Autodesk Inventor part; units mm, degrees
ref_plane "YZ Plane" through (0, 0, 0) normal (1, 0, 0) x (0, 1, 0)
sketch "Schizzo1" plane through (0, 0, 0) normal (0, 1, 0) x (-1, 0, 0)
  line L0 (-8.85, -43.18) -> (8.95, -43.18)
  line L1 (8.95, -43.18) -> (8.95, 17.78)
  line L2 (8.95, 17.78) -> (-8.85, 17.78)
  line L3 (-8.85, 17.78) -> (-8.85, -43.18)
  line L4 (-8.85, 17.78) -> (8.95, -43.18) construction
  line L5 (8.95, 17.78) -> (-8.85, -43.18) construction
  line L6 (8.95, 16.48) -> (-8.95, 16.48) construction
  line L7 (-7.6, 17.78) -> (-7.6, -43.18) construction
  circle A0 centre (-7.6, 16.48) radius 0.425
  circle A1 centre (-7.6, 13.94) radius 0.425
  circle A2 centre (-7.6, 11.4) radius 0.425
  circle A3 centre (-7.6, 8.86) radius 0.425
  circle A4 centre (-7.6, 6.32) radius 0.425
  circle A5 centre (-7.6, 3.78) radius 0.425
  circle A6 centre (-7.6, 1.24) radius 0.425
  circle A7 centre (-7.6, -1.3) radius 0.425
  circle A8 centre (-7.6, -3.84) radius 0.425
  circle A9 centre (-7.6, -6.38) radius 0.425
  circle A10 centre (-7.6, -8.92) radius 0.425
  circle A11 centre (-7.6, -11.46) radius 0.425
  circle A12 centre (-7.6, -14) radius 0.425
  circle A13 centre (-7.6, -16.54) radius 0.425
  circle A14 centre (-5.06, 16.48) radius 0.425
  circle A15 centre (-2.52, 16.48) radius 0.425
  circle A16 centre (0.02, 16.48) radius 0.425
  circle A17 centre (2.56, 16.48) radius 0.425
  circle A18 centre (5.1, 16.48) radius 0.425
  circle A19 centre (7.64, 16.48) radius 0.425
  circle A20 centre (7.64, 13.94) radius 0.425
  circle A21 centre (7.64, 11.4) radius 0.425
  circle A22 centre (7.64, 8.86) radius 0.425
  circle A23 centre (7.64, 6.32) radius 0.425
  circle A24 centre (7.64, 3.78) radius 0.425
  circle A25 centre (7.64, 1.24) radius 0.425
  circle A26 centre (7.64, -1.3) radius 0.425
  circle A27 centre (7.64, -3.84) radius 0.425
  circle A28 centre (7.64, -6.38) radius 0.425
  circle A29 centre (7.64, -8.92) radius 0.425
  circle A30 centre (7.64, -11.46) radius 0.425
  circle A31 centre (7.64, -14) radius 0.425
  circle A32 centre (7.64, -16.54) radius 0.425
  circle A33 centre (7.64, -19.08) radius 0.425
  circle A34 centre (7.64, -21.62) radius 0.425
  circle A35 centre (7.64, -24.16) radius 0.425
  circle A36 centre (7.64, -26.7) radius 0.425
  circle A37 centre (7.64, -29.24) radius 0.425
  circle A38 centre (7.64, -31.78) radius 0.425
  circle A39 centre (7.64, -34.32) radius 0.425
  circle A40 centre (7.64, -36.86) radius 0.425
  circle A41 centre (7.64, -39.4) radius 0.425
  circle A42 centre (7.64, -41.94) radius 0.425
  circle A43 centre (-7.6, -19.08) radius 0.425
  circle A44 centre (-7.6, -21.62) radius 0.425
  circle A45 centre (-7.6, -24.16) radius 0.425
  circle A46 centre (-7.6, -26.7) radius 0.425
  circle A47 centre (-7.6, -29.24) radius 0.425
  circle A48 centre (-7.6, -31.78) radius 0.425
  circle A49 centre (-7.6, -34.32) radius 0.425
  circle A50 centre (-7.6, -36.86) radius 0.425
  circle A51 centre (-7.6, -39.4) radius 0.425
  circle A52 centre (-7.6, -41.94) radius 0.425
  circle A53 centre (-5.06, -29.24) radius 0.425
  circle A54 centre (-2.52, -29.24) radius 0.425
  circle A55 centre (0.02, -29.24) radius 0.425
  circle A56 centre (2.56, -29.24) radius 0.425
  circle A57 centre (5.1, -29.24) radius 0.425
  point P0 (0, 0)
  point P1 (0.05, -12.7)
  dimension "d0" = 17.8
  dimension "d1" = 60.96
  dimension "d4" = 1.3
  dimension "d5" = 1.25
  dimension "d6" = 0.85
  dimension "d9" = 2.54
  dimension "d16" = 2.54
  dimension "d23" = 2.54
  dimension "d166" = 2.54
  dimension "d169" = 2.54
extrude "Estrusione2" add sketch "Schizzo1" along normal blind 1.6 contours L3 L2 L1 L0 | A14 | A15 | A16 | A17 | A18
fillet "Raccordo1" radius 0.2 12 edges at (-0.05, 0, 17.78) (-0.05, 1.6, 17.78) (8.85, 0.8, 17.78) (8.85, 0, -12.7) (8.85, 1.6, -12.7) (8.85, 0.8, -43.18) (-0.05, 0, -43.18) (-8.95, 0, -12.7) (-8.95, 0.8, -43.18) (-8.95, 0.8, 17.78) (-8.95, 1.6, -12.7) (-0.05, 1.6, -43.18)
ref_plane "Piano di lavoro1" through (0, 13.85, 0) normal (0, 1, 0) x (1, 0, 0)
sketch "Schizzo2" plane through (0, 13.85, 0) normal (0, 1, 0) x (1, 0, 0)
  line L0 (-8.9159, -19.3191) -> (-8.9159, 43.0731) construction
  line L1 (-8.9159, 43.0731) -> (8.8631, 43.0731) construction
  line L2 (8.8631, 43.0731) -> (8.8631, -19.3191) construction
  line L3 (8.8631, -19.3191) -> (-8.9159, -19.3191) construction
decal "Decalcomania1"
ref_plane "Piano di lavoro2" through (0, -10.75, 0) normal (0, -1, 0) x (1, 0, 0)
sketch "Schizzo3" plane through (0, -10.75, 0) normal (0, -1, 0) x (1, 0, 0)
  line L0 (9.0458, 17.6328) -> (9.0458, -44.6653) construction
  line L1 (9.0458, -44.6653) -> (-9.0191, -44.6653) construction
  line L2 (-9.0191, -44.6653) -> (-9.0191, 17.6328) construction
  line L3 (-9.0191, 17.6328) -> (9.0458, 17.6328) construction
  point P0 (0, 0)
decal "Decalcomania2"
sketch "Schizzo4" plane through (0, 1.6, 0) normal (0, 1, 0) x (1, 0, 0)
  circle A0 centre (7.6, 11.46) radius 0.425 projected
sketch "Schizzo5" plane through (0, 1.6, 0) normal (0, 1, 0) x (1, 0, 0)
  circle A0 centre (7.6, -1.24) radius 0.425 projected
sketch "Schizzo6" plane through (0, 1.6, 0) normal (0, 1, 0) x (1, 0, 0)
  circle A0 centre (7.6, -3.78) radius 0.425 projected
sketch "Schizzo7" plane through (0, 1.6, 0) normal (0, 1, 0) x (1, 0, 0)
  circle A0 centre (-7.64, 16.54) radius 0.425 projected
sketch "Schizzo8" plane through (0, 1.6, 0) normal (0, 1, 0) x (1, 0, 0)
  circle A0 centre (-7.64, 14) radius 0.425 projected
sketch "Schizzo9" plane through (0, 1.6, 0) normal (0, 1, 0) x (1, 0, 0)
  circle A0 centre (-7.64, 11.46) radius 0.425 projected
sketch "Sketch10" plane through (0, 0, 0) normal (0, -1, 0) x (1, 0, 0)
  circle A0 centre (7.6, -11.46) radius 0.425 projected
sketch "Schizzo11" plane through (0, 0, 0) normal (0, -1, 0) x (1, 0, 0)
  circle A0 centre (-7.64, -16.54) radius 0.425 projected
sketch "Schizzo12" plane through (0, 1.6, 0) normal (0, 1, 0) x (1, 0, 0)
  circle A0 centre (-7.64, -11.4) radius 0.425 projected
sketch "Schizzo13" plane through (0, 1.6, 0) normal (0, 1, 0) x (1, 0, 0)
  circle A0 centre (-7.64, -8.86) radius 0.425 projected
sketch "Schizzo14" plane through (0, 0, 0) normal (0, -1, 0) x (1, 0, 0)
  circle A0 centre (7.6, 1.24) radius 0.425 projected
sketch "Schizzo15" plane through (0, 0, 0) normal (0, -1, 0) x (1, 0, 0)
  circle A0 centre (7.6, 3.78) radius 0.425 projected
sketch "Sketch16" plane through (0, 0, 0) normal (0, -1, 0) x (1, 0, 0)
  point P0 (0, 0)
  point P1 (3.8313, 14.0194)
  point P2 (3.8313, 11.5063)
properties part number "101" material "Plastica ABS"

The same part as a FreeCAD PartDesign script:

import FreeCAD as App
import Part
import Sketcher
Q = App.Units.Quantity


def edges_at(feature, points):
    """Names of the edges that pass closest to the given points."""
    edges = feature.Shape.Edges
    near = lambda p: min(range(len(edges)), key=lambda i: edges[i].distToShape(Part.Vertex(*p))[0])
    return sorted({f"Edge{near(p) + 1}" for p in points})

doc = App.newDocument("Part")
params = doc.addObject("Spreadsheet::Sheet", "Params")
for row, (alias, value) in enumerate([
    ("sketch1_diameter", "0.85 mm"),
    ("sketch1_width", "17.8 mm"),
    ("sketch1_height", "60.96 mm"),
    ("pad1_length", "1.6 mm"),
    ("fillet_radius", "0.2 mm"),
], start=1):
    params.set(f"A{row}", alias)
    params.set(f"B{row}", "=" + value)
    params.setAlias(f"B{row}", alias)

body = doc.addObject("PartDesign::Body", "Body")

# Sketch on XZ plane
sketch1 = body.newObject("Sketcher::SketchObject", "Sketch")
sketch1.AttachmentSupport = (doc.getObject("XZ_Plane"), [""])
sketch1.MapMode = "FlatFace"
sketch1.addGeometry(Part.LineSegment(App.Vector(8.85, 17.78, 0), App.Vector(8.85, -43.18, 0)), False)
sketch1.addGeometry(Part.LineSegment(App.Vector(8.85, -43.18, 0), App.Vector(-8.95, -43.18, 0)), False)
sketch1.addGeometry(Part.LineSegment(App.Vector(-8.95, -43.18, 0), App.Vector(-8.95, 17.78, 0)), False)
sketch1.addGeometry(Part.LineSegment(App.Vector(-8.95, 17.78, 0), App.Vector(8.85, 17.78, 0)), False)
sketch1.addGeometry(Part.Circle(App.Vector(7.6, -41.94, 0), App.Vector(0, 0, 1), 0.42), False)
sketch1.addGeometry(Part.Circle(App.Vector(7.6, -39.4, 0), App.Vector(0, 0, 1), 0.42), False)
sketch1.addGeometry(Part.Circle(App.Vector(7.6, -36.86, 0), App.Vector(0, 0, 1), 0.42), False)
sketch1.addGeometry(Part.Circle(App.Vector(7.6, -34.32, 0), App.Vector(0, 0, 1), 0.42), False)
sketch1.addGeometry(Part.Circle(App.Vector(7.6, -31.78, 0), App.Vector(0, 0, 1), 0.42), False)
sketch1.addGeometry(Part.Circle(App.Vector(7.6, -29.24, 0), App.Vector(0, 0, 1), 0.42), False)
sketch1.addGeometry(Part.Circle(App.Vector(5.06, -29.24, 0), App.Vector(0, 0, 1), 0.42), False)
sketch1.addGeometry(Part.Circle(App.Vector(2.52, -29.24, 0), App.Vector(0, 0, 1), 0.42), False)
sketch1.addGeometry(Part.Circle(App.Vector(-0.02, -29.24, 0), App.Vector(0, 0, 1), 0.42), False)
sketch1.addGeometry(Part.Circle(App.Vector(7.6, -26.7, 0), App.Vector(0, 0, 1), 0.42), False)
sketch1.addGeometry(Part.Circle(App.Vector(7.6, -24.16, 0), App.Vector(0, 0, 1), 0.42), False)
sketch1.addGeometry(Part.Circle(App.Vector(7.6, -21.62, 0), App.Vector(0, 0, 1), 0.42), False)
sketch1.addGeometry(Part.Circle(App.Vector(7.6, -19.08, 0), App.Vector(0, 0, 1), 0.42), False)
sketch1.addGeometry(Part.Circle(App.Vector(7.6, -16.54, 0), App.Vector(0, 0, 1), 0.42), False)
sketch1.addGeometry(Part.Circle(App.Vector(7.6, -14, 0), App.Vector(0, 0, 1), 0.42), False)
sketch1.addGeometry(Part.Circle(App.Vector(-2.56, -29.24, 0), App.Vector(0, 0, 1), 0.42), False)
sketch1.addGeometry(Part.Circle(App.Vector(-7.64, -41.94, 0), App.Vector(0, 0, 1), 0.42), False)
sketch1.addGeometry(Part.Circle(App.Vector(-7.64, -39.4, 0), App.Vector(0, 0, 1), 0.42), False)
sketch1.addGeometry(Part.Circle(App.Vector(-7.64, -36.86, 0), App.Vector(0, 0, 1), 0.42), False)
sketch1.addGeometry(Part.Circle(App.Vector(-5.1, -29.24, 0), App.Vector(0, 0, 1), 0.42), False)
sketch1.addGeometry(Part.Circle(App.Vector(-7.64, -34.32, 0), App.Vector(0, 0, 1), 0.42), False)
sketch1.addGeometry(Part.Circle(App.Vector(-7.64, -31.78, 0), App.Vector(0, 0, 1), 0.42), False)
sketch1.addGeometry(Part.Circle(App.Vector(-7.64, -29.24, 0), App.Vector(0, 0, 1), 0.42), False)
sketch1.addGeometry(Part.Circle(App.Vector(-7.64, -26.7, 0), App.Vector(0, 0, 1), 0.42), False)
sketch1.addGeometry(Part.Circle(App.Vector(-7.64, -24.16, 0), App.Vector(0, 0, 1), 0.42), False)
sketch1.addGeometry(Part.Circle(App.Vector(-7.64, -21.62, 0), App.Vector(0, 0, 1), 0.42), False)
sketch1.addGeometry(Part.Circle(App.Vector(-7.64, -19.08, 0), App.Vector(0, 0, 1), 0.42), False)
sketch1.addGeometry(Part.Circle(App.Vector(-7.64, -16.54, 0), App.Vector(0, 0, 1), 0.42), False)
sketch1.addGeometry(Part.Circle(App.Vector(-7.64, -14, 0), App.Vector(0, 0, 1), 0.42), False)
sketch1.addGeometry(Part.Circle(App.Vector(7.6, -11.46, 0), App.Vector(0, 0, 1), 0.42), False)
sketch1.addGeometry(Part.Circle(App.Vector(7.6, -8.92, 0), App.Vector(0, 0, 1), 0.42), False)
sketch1.addGeometry(Part.Circle(App.Vector(7.6, -6.38, 0), App.Vector(0, 0, 1), 0.42), False)
sketch1.addGeometry(Part.Circle(App.Vector(7.6, -3.84, 0), App.Vector(0, 0, 1), 0.42), False)
sketch1.addGeometry(Part.Circle(App.Vector(7.6, -1.3, 0), App.Vector(0, 0, 1), 0.42), False)
sketch1.addGeometry(Part.Circle(App.Vector(7.6, 1.24, 0), App.Vector(0, 0, 1), 0.42), False)
sketch1.addGeometry(Part.Circle(App.Vector(7.6, 3.78, 0), App.Vector(0, 0, 1), 0.42), False)
sketch1.addGeometry(Part.Circle(App.Vector(7.6, 6.32, 0), App.Vector(0, 0, 1), 0.42), False)
sketch1.addGeometry(Part.Circle(App.Vector(7.6, 8.86, 0), App.Vector(0, 0, 1), 0.42), False)
sketch1.addGeometry(Part.Circle(App.Vector(7.6, 11.4, 0), App.Vector(0, 0, 1), 0.42), False)
sketch1.addGeometry(Part.Circle(App.Vector(7.6, 13.94, 0), App.Vector(0, 0, 1), 0.42), False)
sketch1.addGeometry(Part.Circle(App.Vector(7.6, 16.48, 0), App.Vector(0, 0, 1), 0.42), False)
sketch1.addGeometry(Part.Circle(App.Vector(-7.64, -11.46, 0), App.Vector(0, 0, 1), 0.42), False)
sketch1.addGeometry(Part.Circle(App.Vector(-7.64, -8.92, 0), App.Vector(0, 0, 1), 0.42), False)
sketch1.addGeometry(Part.Circle(App.Vector(-7.64, -6.38, 0), App.Vector(0, 0, 1), 0.42), False)
sketch1.addGeometry(Part.Circle(App.Vector(-7.64, -3.84, 0), App.Vector(0, 0, 1), 0.42), False)
sketch1.addGeometry(Part.Circle(App.Vector(-7.64, -1.3, 0), App.Vector(0, 0, 1), 0.42), False)
sketch1.addGeometry(Part.Circle(App.Vector(-7.64, 1.24, 0), App.Vector(0, 0, 1), 0.42), False)
sketch1.addGeometry(Part.Circle(App.Vector(-7.64, 3.78, 0), App.Vector(0, 0, 1), 0.42), False)
sketch1.addGeometry(Part.Circle(App.Vector(-7.64, 6.32, 0), App.Vector(0, 0, 1), 0.42), False)
sketch1.addGeometry(Part.Circle(App.Vector(-7.64, 8.86, 0), App.Vector(0, 0, 1), 0.42), False)
sketch1.addGeometry(Part.Circle(App.Vector(-7.64, 11.4, 0), App.Vector(0, 0, 1), 0.42), False)
sketch1.addGeometry(Part.Circle(App.Vector(-7.64, 13.94, 0), App.Vector(0, 0, 1), 0.42), False)
sketch1.addGeometry(Part.Circle(App.Vector(-7.64, 16.48, 0), App.Vector(0, 0, 1), 0.42), False)
sketch1.addConstraint(Sketcher.Constraint("Coincident", 0, 2, 1, 1))
sketch1.addConstraint(Sketcher.Constraint("Coincident", 1, 2, 2, 1))
sketch1.addConstraint(Sketcher.Constraint("Coincident", 2, 2, 3, 1))
sketch1.addConstraint(Sketcher.Constraint("Coincident", 3, 2, 0, 1))
sketch1.addConstraint(Sketcher.Constraint("Vertical", 0))
sketch1.addConstraint(Sketcher.Constraint("Horizontal", 1))
sketch1.addConstraint(Sketcher.Constraint("Vertical", 2))
sketch1.addConstraint(Sketcher.Constraint("Horizontal", 3))
sketch1.addConstraint(Sketcher.Constraint("Equal", 4, 5))
sketch1.addConstraint(Sketcher.Constraint("Equal", 5, 6))
sketch1.addConstraint(Sketcher.Constraint("Equal", 6, 7))
sketch1.addConstraint(Sketcher.Constraint("Equal", 7, 8))
sketch1.addConstraint(Sketcher.Constraint("Equal", 8, 9))
sketch1.addConstraint(Sketcher.Constraint("Equal", 9, 10))
sketch1.addConstraint(Sketcher.Constraint("Equal", 10, 11))
sketch1.addConstraint(Sketcher.Constraint("Equal", 11, 12))
sketch1.addConstraint(Sketcher.Constraint("Equal", 12, 13))
sketch1.addConstraint(Sketcher.Constraint("Equal", 13, 14))
sketch1.addConstraint(Sketcher.Constraint("Equal", 14, 15))
sketch1.addConstraint(Sketcher.Constraint("Equal", 15, 16))
sketch1.addConstraint(Sketcher.Constraint("Equal", 16, 17))
sketch1.addConstraint(Sketcher.Constraint("Equal", 17, 18))
sketch1.addConstraint(Sketcher.Constraint("Equal", 18, 19))
sketch1.addConstraint(Sketcher.Constraint("Equal", 19, 20))
sketch1.addConstraint(Sketcher.Constraint("Equal", 20, 21))
sketch1.addConstraint(Sketcher.Constraint("Equal", 21, 22))
sketch1.addConstraint(Sketcher.Constraint("Equal", 22, 23))
sketch1.addConstraint(Sketcher.Constraint("Equal", 23, 24))
sketch1.addConstraint(Sketcher.Constraint("Equal", 24, 25))
sketch1.addConstraint(Sketcher.Constraint("Equal", 25, 26))
sketch1.addConstraint(Sketcher.Constraint("Equal", 26, 27))
sketch1.addConstraint(Sketcher.Constraint("Equal", 27, 28))
sketch1.addConstraint(Sketcher.Constraint("Equal", 28, 29))
sketch1.addConstraint(Sketcher.Constraint("Equal", 29, 30))
sketch1.addConstraint(Sketcher.Constraint("Equal", 30, 31))
sketch1.addConstraint(Sketcher.Constraint("Equal", 31, 32))
sketch1.addConstraint(Sketcher.Constraint("Equal", 32, 33))
sketch1.addConstraint(Sketcher.Constraint("Equal", 33, 34))
sketch1.addConstraint(Sketcher.Constraint("Equal", 34, 35))
sketch1.addConstraint(Sketcher.Constraint("Equal", 35, 36))
sketch1.addConstraint(Sketcher.Constraint("Equal", 36, 37))
sketch1.addConstraint(Sketcher.Constraint("Equal", 37, 38))
sketch1.addConstraint(Sketcher.Constraint("Equal", 38, 39))
sketch1.addConstraint(Sketcher.Constraint("Equal", 39, 40))
sketch1.addConstraint(Sketcher.Constraint("Equal", 40, 41))
sketch1.addConstraint(Sketcher.Constraint("Equal", 41, 42))
sketch1.addConstraint(Sketcher.Constraint("Equal", 42, 43))
sketch1.addConstraint(Sketcher.Constraint("Equal", 43, 44))
sketch1.addConstraint(Sketcher.Constraint("Equal", 44, 45))
sketch1.addConstraint(Sketcher.Constraint("Equal", 45, 46))
sketch1.addConstraint(Sketcher.Constraint("Equal", 46, 47))
sketch1.addConstraint(Sketcher.Constraint("Equal", 47, 48))
sketch1.addConstraint(Sketcher.Constraint("Equal", 48, 49))
sketch1.addConstraint(Sketcher.Constraint("Equal", 49, 50))
sketch1.addConstraint(Sketcher.Constraint("Equal", 50, 51))
sketch1.addConstraint(Sketcher.Constraint("Equal", 51, 52))
sketch1.addConstraint(Sketcher.Constraint("Equal", 52, 53))
sketch1.addConstraint(Sketcher.Constraint("Equal", 53, 54))
sketch1.addConstraint(Sketcher.Constraint("Equal", 54, 55))
sketch1.addConstraint(Sketcher.Constraint("Equal", 55, 56))
sketch1.addConstraint(Sketcher.Constraint("Horizontal", 9, 3, 10, 3))
sketch1.addConstraint(Sketcher.Constraint("Horizontal", 10, 3, 11, 3))
sketch1.addConstraint(Sketcher.Constraint("Horizontal", 11, 3, 12, 3))
sketch1.addConstraint(Sketcher.Constraint("Horizontal", 12, 3, 19, 3))
sketch1.addConstraint(Sketcher.Constraint("Horizontal", 4, 3, 20, 3))
sketch1.addConstraint(Sketcher.Constraint("Horizontal", 5, 3, 21, 3))
sketch1.addConstraint(Sketcher.Constraint("Horizontal", 6, 3, 22, 3))
sketch1.addConstraint(Sketcher.Constraint("Horizontal", 19, 3, 23, 3))
sketch1.addConstraint(Sketcher.Constraint("Horizontal", 7, 3, 24, 3))
sketch1.addConstraint(Sketcher.Constraint("Horizontal", 8, 3, 25, 3))
sketch1.addConstraint(Sketcher.Constraint("Horizontal", 23, 3, 26, 3))
sketch1.addConstraint(Sketcher.Constraint("Horizontal", 13, 3, 27, 3))
sketch1.addConstraint(Sketcher.Constraint("Horizontal", 14, 3, 28, 3))
sketch1.addConstraint(Sketcher.Constraint("Horizontal", 15, 3, 29, 3))
sketch1.addConstraint(Sketcher.Constraint("Horizontal", 16, 3, 30, 3))
sketch1.addConstraint(Sketcher.Constraint("Horizontal", 17, 3, 31, 3))
sketch1.addConstraint(Sketcher.Constraint("Horizontal", 18, 3, 32, 3))
sketch1.addConstraint(Sketcher.Constraint("Horizontal", 33, 3, 45, 3))
sketch1.addConstraint(Sketcher.Constraint("Horizontal", 34, 3, 46, 3))
sketch1.addConstraint(Sketcher.Constraint("Horizontal", 35, 3, 47, 3))
sketch1.addConstraint(Sketcher.Constraint("Horizontal", 36, 3, 48, 3))
sketch1.addConstraint(Sketcher.Constraint("Horizontal", 37, 3, 49, 3))
sketch1.addConstraint(Sketcher.Constraint("Horizontal", 38, 3, 50, 3))
sketch1.addConstraint(Sketcher.Constraint("Horizontal", 39, 3, 51, 3))
sketch1.addConstraint(Sketcher.Constraint("Horizontal", 40, 3, 52, 3))
sketch1.addConstraint(Sketcher.Constraint("Horizontal", 41, 3, 53, 3))
sketch1.addConstraint(Sketcher.Constraint("Horizontal", 42, 3, 54, 3))
sketch1.addConstraint(Sketcher.Constraint("Horizontal", 43, 3, 55, 3))
sketch1.addConstraint(Sketcher.Constraint("Horizontal", 44, 3, 56, 3))
sketch1.addConstraint(Sketcher.Constraint("Vertical", 4, 3, 5, 3))
sketch1.addConstraint(Sketcher.Constraint("Vertical", 5, 3, 6, 3))
sketch1.addConstraint(Sketcher.Constraint("Vertical", 6, 3, 7, 3))
sketch1.addConstraint(Sketcher.Constraint("Vertical", 7, 3, 8, 3))
sketch1.addConstraint(Sketcher.Constraint("Vertical", 8, 3, 9, 3))
sketch1.addConstraint(Sketcher.Constraint("Vertical", 9, 3, 13, 3))
sketch1.addConstraint(Sketcher.Constraint("Vertical", 13, 3, 14, 3))
sketch1.addConstraint(Sketcher.Constraint("Vertical", 14, 3, 15, 3))
sketch1.addConstraint(Sketcher.Constraint("Vertical", 15, 3, 16, 3))
sketch1.addConstraint(Sketcher.Constraint("Vertical", 16, 3, 17, 3))
sketch1.addConstraint(Sketcher.Constraint("Vertical", 17, 3, 18, 3))
sketch1.addConstraint(Sketcher.Constraint("Vertical", 20, 3, 21, 3))
sketch1.addConstraint(Sketcher.Constraint("Vertical", 21, 3, 22, 3))
sketch1.addConstraint(Sketcher.Constraint("Vertical", 22, 3, 24, 3))
sketch1.addConstraint(Sketcher.Constraint("Vertical", 24, 3, 25, 3))
sketch1.addConstraint(Sketcher.Constraint("Vertical", 25, 3, 26, 3))
sketch1.addConstraint(Sketcher.Constraint("Vertical", 26, 3, 27, 3))
sketch1.addConstraint(Sketcher.Constraint("Vertical", 27, 3, 28, 3))
sketch1.addConstraint(Sketcher.Constraint("Vertical", 28, 3, 29, 3))
sketch1.addConstraint(Sketcher.Constraint("Vertical", 29, 3, 30, 3))
sketch1.addConstraint(Sketcher.Constraint("Vertical", 30, 3, 31, 3))
sketch1.addConstraint(Sketcher.Constraint("Vertical", 31, 3, 32, 3))
sketch1.addConstraint(Sketcher.Constraint("Vertical", 18, 3, 33, 3))
sketch1.addConstraint(Sketcher.Constraint("Vertical", 33, 3, 34, 3))
sketch1.addConstraint(Sketcher.Constraint("Vertical", 34, 3, 35, 3))
sketch1.addConstraint(Sketcher.Constraint("Vertical", 35, 3, 36, 3))
sketch1.addConstraint(Sketcher.Constraint("Vertical", 36, 3, 37, 3))
sketch1.addConstraint(Sketcher.Constraint("Vertical", 37, 3, 38, 3))
sketch1.addConstraint(Sketcher.Constraint("Vertical", 38, 3, 39, 3))
sketch1.addConstraint(Sketcher.Constraint("Vertical", 39, 3, 40, 3))
sketch1.addConstraint(Sketcher.Constraint("Vertical", 40, 3, 41, 3))
sketch1.addConstraint(Sketcher.Constraint("Vertical", 41, 3, 42, 3))
sketch1.addConstraint(Sketcher.Constraint("Vertical", 42, 3, 43, 3))
sketch1.addConstraint(Sketcher.Constraint("Vertical", 43, 3, 44, 3))
sketch1.addConstraint(Sketcher.Constraint("Vertical", 32, 3, 45, 3))
sketch1.addConstraint(Sketcher.Constraint("Vertical", 45, 3, 46, 3))
sketch1.addConstraint(Sketcher.Constraint("Vertical", 46, 3, 47, 3))
sketch1.addConstraint(Sketcher.Constraint("Vertical", 47, 3, 48, 3))
sketch1.addConstraint(Sketcher.Constraint("Vertical", 48, 3, 49, 3))
sketch1.addConstraint(Sketcher.Constraint("Vertical", 49, 3, 50, 3))
sketch1.addConstraint(Sketcher.Constraint("Vertical", 50, 3, 51, 3))
sketch1.addConstraint(Sketcher.Constraint("Vertical", 51, 3, 52, 3))
sketch1.addConstraint(Sketcher.Constraint("Vertical", 52, 3, 53, 3))
sketch1.addConstraint(Sketcher.Constraint("Vertical", 53, 3, 54, 3))
sketch1.addConstraint(Sketcher.Constraint("Vertical", 54, 3, 55, 3))
sketch1.addConstraint(Sketcher.Constraint("Vertical", 55, 3, 56, 3))
sketch1.addConstraint(Sketcher.Constraint("Diameter", 4, Q("0.85 mm")))
sketch1.addConstraint(Sketcher.Constraint("DistanceX", 1, 2, 1, 1, Q("17.8 mm")))
sketch1.addConstraint(Sketcher.Constraint("DistanceY", 0, 2, 0, 1, Q("60.96 mm")))
sketch1.addConstraint(Sketcher.Constraint("DistanceY", 37, 3, -1, 1, Q("1.3 mm")))
sketch1.addConstraint(Sketcher.Constraint("DistanceY", 56, 3, 2, 2, Q("1.3 mm")))
sketch1.addConstraint(Sketcher.Constraint("DistanceY", 4, 3, 5, 3, Q("2.54 mm")))
sketch1.addConstraint(Sketcher.Constraint("DistanceY", 5, 3, 6, 3, Q("2.54 mm")))
sketch1.addConstraint(Sketcher.Constraint("DistanceY", 6, 3, 7, 3, Q("2.54 mm")))
sketch1.addConstraint(Sketcher.Constraint("DistanceY", 7, 3, 8, 3, Q("2.54 mm")))
sketch1.addConstraint(Sketcher.Constraint("DistanceY", 8, 3, 9, 3, Q("2.54 mm")))
sketch1.addConstraint(Sketcher.Constraint("DistanceX", 10, 3, 9, 3, Q("2.54 mm")))
sketch1.addConstraint(Sketcher.Constraint("DistanceX", 11, 3, 10, 3, Q("2.54 mm")))
sketch1.addConstraint(Sketcher.Constraint("DistanceX", 12, 3, 11, 3, Q("2.54 mm")))
sketch1.addConstraint(Sketcher.Constraint("DistanceY", 9, 3, 13, 3, Q("2.54 mm")))
sketch1.addConstraint(Sketcher.Constraint("DistanceY", 13, 3, 14, 3, Q("2.54 mm")))
sketch1.addConstraint(Sketcher.Constraint("DistanceY", 14, 3, 15, 3, Q("2.54 mm")))
sketch1.addConstraint(Sketcher.Constraint("DistanceY", 15, 3, 16, 3, Q("2.54 mm")))
sketch1.addConstraint(Sketcher.Constraint("DistanceY", 16, 3, 17, 3, Q("2.54 mm")))
sketch1.addConstraint(Sketcher.Constraint("DistanceY", 17, 3, 18, 3, Q("2.54 mm")))
sketch1.addConstraint(Sketcher.Constraint("DistanceX", 19, 3, 12, 3, Q("2.54 mm")))
sketch1.addConstraint(Sketcher.Constraint("DistanceX", 23, 3, 19, 3, Q("2.54 mm")))
sketch1.addConstraint(Sketcher.Constraint("DistanceX", 22, 3, 23, 3, Q("2.54 mm")))
sketch1.addConstraint(Sketcher.Constraint("DistanceY", 18, 3, 33, 3, Q("2.54 mm")))
sketch1.addConstraint(Sketcher.Constraint("DistanceY", 33, 3, 34, 3, Q("2.54 mm")))
sketch1.addConstraint(Sketcher.Constraint("DistanceY", 34, 3, 35, 3, Q("2.54 mm")))
sketch1.addConstraint(Sketcher.Constraint("DistanceY", 35, 3, 36, 3, Q("2.54 mm")))
sketch1.addConstraint(Sketcher.Constraint("DistanceY", 36, 3, 37, 3, Q("2.54 mm")))
sketch1.addConstraint(Sketcher.Constraint("DistanceY", 37, 3, 38, 3, Q("2.54 mm")))
sketch1.addConstraint(Sketcher.Constraint("DistanceY", 38, 3, 39, 3, Q("2.54 mm")))
sketch1.addConstraint(Sketcher.Constraint("DistanceY", 39, 3, 40, 3, Q("2.54 mm")))
sketch1.addConstraint(Sketcher.Constraint("DistanceY", 40, 3, 41, 3, Q("2.54 mm")))
sketch1.addConstraint(Sketcher.Constraint("DistanceY", 41, 3, 42, 3, Q("2.54 mm")))
sketch1.addConstraint(Sketcher.Constraint("DistanceY", 42, 3, 43, 3, Q("2.54 mm")))
sketch1.addConstraint(Sketcher.Constraint("DistanceY", 43, 3, 44, 3, Q("2.54 mm")))
sketch1.addConstraint(Sketcher.Constraint("DistanceX", 4, 3, 0, 2, Q("1.25 mm")))
sketch1.addConstraint(Sketcher.Constraint("DistanceX", -1, 1, 4, 3, Q("7.6 mm")))
sketch1.setExpression("Constraints[135]", "Params.sketch1_diameter")
sketch1.setExpression("Constraints[136]", "Params.sketch1_width")
sketch1.setExpression("Constraints[137]", "Params.sketch1_height")
pad1 = body.newObject("PartDesign::Pad", "Pad")
pad1.Profile = sketch1
pad1.setExpression("Length", "Params.pad1_length")
pad1.Reversed = True
doc.recompute()

fillet = body.newObject("PartDesign::Fillet", "Fillet")
fillet.Base = (pad1, edges_at(pad1, [
    (-0.05, 0, 17.78),
    (-0.05, 1.6, 17.78),
    (8.85, 0.8, 17.78),
    (8.85, 0, -12.7),
    (8.85, 1.6, -12.7),
    (8.85, 0.8, -43.18),
    (-0.05, 0, -43.18),
    (-8.95, 0, -12.7),
    (-8.95, 0.8, -43.18),
    (-8.95, 0.8, 17.78),
    (-8.95, 1.6, -12.7),
    (-0.05, 1.6, -43.18),
]))
fillet.setExpression("Radius", "Params.fillet_radius")

doc.recompute()
